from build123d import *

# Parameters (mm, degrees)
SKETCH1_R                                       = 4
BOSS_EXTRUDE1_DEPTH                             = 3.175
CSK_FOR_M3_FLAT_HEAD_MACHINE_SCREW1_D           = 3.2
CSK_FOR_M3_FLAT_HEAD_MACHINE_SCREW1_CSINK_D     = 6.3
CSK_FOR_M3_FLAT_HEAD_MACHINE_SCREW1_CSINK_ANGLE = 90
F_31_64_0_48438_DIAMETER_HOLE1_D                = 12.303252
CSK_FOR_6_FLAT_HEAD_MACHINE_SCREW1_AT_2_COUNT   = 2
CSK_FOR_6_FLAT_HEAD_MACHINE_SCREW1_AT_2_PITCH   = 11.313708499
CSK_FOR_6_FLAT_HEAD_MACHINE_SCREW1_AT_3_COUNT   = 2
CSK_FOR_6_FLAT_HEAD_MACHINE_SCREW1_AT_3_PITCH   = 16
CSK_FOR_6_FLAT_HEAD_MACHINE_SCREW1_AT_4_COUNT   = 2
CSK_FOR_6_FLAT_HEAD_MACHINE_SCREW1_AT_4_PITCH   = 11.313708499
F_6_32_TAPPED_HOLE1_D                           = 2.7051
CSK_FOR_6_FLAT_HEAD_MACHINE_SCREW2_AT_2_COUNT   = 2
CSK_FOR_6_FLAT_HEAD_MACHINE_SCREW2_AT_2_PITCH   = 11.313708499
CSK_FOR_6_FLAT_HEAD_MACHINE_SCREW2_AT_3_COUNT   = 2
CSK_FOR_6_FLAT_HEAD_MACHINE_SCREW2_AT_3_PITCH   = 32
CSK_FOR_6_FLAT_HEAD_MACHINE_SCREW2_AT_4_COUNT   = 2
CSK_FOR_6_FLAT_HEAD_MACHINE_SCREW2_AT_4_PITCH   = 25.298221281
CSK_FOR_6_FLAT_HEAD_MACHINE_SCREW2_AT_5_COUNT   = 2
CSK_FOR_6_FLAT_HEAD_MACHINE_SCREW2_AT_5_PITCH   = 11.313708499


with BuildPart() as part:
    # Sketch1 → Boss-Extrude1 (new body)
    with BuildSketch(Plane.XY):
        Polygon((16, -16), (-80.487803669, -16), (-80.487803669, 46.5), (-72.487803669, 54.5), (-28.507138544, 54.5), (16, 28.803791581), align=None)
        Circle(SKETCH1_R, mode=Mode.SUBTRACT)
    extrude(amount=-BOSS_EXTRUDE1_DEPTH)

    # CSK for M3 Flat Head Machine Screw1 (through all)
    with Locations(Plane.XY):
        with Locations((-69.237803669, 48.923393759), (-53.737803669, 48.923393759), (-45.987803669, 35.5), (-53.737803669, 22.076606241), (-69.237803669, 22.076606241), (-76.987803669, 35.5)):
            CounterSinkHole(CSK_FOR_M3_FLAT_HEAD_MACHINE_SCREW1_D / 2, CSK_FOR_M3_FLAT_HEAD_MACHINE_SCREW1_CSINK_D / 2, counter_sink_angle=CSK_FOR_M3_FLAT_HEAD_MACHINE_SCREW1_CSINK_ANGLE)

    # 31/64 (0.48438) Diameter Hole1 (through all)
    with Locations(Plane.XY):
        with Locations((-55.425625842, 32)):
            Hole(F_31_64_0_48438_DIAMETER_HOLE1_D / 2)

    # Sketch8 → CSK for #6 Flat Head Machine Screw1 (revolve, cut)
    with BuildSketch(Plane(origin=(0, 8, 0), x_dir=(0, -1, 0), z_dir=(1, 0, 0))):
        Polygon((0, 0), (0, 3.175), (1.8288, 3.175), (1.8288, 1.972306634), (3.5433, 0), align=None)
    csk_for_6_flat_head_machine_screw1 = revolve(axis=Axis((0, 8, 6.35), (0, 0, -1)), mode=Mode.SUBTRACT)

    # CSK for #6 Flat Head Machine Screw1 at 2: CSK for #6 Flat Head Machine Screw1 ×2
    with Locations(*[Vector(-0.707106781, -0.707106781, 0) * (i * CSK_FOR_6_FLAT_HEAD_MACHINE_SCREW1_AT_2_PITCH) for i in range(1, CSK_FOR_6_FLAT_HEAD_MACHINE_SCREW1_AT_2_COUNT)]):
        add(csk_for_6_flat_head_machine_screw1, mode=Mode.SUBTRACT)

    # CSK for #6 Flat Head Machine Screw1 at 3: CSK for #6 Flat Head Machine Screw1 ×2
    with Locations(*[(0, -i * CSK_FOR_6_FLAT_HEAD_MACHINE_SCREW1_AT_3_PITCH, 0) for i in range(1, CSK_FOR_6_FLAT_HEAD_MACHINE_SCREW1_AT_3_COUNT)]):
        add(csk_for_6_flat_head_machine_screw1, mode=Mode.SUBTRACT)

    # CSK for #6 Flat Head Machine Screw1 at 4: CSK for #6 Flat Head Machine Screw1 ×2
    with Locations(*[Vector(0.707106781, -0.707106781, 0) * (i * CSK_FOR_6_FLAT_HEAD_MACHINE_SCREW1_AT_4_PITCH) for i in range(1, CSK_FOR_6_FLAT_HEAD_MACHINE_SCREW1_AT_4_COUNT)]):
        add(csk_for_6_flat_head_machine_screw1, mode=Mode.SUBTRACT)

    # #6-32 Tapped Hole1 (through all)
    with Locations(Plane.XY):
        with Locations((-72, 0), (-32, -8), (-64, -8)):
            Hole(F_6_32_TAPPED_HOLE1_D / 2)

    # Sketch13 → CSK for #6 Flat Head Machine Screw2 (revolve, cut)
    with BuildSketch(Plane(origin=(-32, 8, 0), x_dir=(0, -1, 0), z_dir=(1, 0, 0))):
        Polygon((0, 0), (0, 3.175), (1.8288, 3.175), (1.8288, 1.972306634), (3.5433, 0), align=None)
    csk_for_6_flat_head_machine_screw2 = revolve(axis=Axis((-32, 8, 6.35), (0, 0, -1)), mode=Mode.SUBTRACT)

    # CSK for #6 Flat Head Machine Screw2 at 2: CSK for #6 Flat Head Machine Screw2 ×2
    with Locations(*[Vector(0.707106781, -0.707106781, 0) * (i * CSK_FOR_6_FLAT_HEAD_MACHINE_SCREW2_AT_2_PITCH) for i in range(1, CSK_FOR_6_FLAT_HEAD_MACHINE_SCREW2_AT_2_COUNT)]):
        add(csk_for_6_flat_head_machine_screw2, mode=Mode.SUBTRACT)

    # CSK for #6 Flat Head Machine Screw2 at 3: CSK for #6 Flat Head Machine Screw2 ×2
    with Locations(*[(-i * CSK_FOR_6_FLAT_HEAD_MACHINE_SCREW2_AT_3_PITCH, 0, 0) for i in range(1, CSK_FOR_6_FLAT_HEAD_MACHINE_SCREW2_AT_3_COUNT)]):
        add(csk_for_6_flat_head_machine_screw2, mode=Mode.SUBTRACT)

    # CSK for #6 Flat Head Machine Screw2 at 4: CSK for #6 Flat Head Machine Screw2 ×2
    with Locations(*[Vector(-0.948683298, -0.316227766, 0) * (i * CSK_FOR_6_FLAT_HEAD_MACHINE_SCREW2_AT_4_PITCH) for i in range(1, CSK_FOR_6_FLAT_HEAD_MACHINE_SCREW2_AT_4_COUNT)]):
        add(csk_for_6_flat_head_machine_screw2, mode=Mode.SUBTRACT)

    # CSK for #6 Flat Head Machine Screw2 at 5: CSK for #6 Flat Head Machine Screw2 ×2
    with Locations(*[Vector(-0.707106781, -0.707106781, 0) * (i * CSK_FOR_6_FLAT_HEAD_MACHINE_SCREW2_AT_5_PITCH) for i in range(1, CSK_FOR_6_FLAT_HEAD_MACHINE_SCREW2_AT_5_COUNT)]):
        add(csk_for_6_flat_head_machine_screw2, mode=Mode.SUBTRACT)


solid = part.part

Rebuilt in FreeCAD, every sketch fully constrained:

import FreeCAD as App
import Part
import Sketcher
from FreeCAD import Vector
Q = App.Units.Quantity

doc = App.newDocument("Part")
body = doc.addObject("PartDesign::Body", "Body")

sketch1 = body.newObject("Sketcher::SketchObject", "Sketch")
sketch1.AttachmentSupport = (doc.getObject("XY_Plane"), [""])
sketch1.MapMode = "FlatFace"
sketch1.addGeometry(Part.LineSegment(Vector(-80.5, -16, 0), Vector(16, -16, 0)), False)
sketch1.addGeometry(Part.LineSegment(Vector(16, -16, 0), Vector(16, 28.8, 0)), False)
sketch1.addGeometry(Part.LineSegment(Vector(16, 28.8, 0), Vector(-28.5, 54.5, 0)), False)
sketch1.addGeometry(Part.LineSegment(Vector(-28.5, 54.5, 0), Vector(-72.5, 54.5, 0)), False)
sketch1.addGeometry(Part.LineSegment(Vector(-72.5, 54.5, 0), Vector(-80.5, 46.5, 0)), False)
sketch1.addGeometry(Part.LineSegment(Vector(-80.5, 46.5, 0), Vector(-80.5, -16, 0)), False)
sketch1.addGeometry(Part.Circle(Vector(0, 0, 0), Vector(0, 0, 1), 4), False)
sketch1.addConstraint(Sketcher.Constraint("Coincident", 0, 2, 1, 1))
sketch1.addConstraint(Sketcher.Constraint("Coincident", 1, 2, 2, 1))
sketch1.addConstraint(Sketcher.Constraint("Coincident", 2, 2, 3, 1))
sketch1.addConstraint(Sketcher.Constraint("Coincident", 3, 2, 4, 1))
sketch1.addConstraint(Sketcher.Constraint("Coincident", 4, 2, 5, 1))
sketch1.addConstraint(Sketcher.Constraint("Coincident", 5, 2, 0, 1))
sketch1.addConstraint(Sketcher.Constraint("Horizontal", 0))
sketch1.addConstraint(Sketcher.Constraint("Vertical", 1))
sketch1.addConstraint(Sketcher.Constraint("Horizontal", 3))
sketch1.addConstraint(Sketcher.Constraint("Vertical", 5))
sketch1.addConstraint(Sketcher.Constraint("Coincident", 6, 3, -1, 1))
sketch1.addConstraint(Sketcher.Constraint("Diameter", 6, 8.0))
sketch1.addConstraint(Sketcher.Constraint("Angle", 2, Q("150 deg")))
sketch1.addConstraint(Sketcher.Constraint("Angle", 4, Q("-135 deg")))
sketch1.addConstraint(Sketcher.Constraint("DistanceY", 5, 2, 5, 1, 62.5))
sketch1.addConstraint(Sketcher.Constraint("DistanceX", -1, 1, 0, 2, 16.0))
sketch1.addConstraint(Sketcher.Constraint("DistanceY", 0, 2, -1, 1, 16.0))
sketch1.addConstraint(Sketcher.Constraint("DistanceX", 4, 2, 3, 2, 8.0))
sketch1.addConstraint(Sketcher.Constraint("DistanceY", 1, 1, 1, 2, 44.803792))
sketch1.addConstraint(Sketcher.Constraint("DistanceX", 0, 1, 0, 2, 96.487804))
pad1 = body.newObject("PartDesign::Pad", "Pad")
pad1.Profile = sketch1
pad1.Length = 3.175
pad1.Reversed = True

sketch2 = body.newObject("Sketcher::SketchObject", "Sketch001")
sketch2.AttachmentSupport = (doc.getObject("XY_Plane"), [""])
sketch2.MapMode = "FlatFace"
sketch2.addGeometry(Part.Circle(Vector(-69.2, 48.9, 0), Vector(0, 0, 1), 1.6), False)
sketch2.addGeometry(Part.Circle(Vector(-53.7, 48.9, 0), Vector(0, 0, 1), 1.6), False)
sketch2.addGeometry(Part.Circle(Vector(-46, 35.5, 0), Vector(0, 0, 1), 1.6), False)
sketch2.addGeometry(Part.Circle(Vector(-53.7, 22.1, 0), Vector(0, 0, 1), 1.6), False)
sketch2.addGeometry(Part.Circle(Vector(-69.2, 22.1, 0), Vector(0, 0, 1), 1.6), False)
sketch2.addGeometry(Part.Circle(Vector(-77, 35.5, 0), Vector(0, 0, 1), 1.6), False)
sketch2.addConstraint(Sketcher.Constraint("Equal", 0, 1))
sketch2.addConstraint(Sketcher.Constraint("Equal", 1, 2))
sketch2.addConstraint(Sketcher.Constraint("Equal", 2, 3))
sketch2.addConstraint(Sketcher.Constraint("Equal", 3, 4))
sketch2.addConstraint(Sketcher.Constraint("Equal", 4, 5))
sketch2.addConstraint(Sketcher.Constraint("Horizontal", 0, 3, 1, 3))
sketch2.addConstraint(Sketcher.Constraint("Horizontal", 3, 3, 4, 3))
sketch2.addConstraint(Sketcher.Constraint("Horizontal", 2, 3, 5, 3))
sketch2.addConstraint(Sketcher.Constraint("Vertical", 1, 3, 3, 3))
sketch2.addConstraint(Sketcher.Constraint("Vertical", 0, 3, 4, 3))
sketch2.addConstraint(Sketcher.Constraint("Diameter", 0, 3.2))
sketch2.addConstraint(Sketcher.Constraint("DistanceX", 5, 3, 2, 3, 31.0))
sketch2.addConstraint(Sketcher.Constraint("DistanceY", -1, 1, 2, 3, 35.5))
sketch2.addConstraint(Sketcher.Constraint("DistanceX", 0, 3, 1, 3, 15.5))
sketch2.addConstraint(Sketcher.Constraint("DistanceX", 1, 3, 2, 3, 7.75))
sketch2.addConstraint(Sketcher.Constraint("DistanceX", 0, 3, -1, 1, 69.237804))
sketch2.addConstraint(Sketcher.Constraint("DistanceY", -1, 1, 0, 3, 48.923394))
sketch2.addConstraint(Sketcher.Constraint("DistanceY", -1, 1, 3, 3, 22.076606))
doc.recompute()
hole = body.newObject("PartDesign::Hole", "Hole")
hole.Profile = sketch2
hole.ThreadType = "None"
hole.Diameter = 3.2
hole.DepthType = "ThroughAll"
hole.HoleCutType = "Countersink"
hole.HoleCutDiameter = 6.3
hole.HoleCutCountersinkAngle = 90

sketch3 = body.newObject("Sketcher::SketchObject", "Sketch002")
sketch3.AttachmentSupport = (doc.getObject("XY_Plane"), [""])
sketch3.MapMode = "FlatFace"
sketch3.addGeometry(Part.Circle(Vector(-55, 32, 0), Vector(0, 0, 1), 6), False)
sketch3.addConstraint(Sketcher.Constraint("DistanceY", -1, 1, 0, 3, 32.0))
sketch3.addConstraint(Sketcher.Constraint("Diameter", 0, 12.303252))
sketch3.addConstraint(Sketcher.Constraint("DistanceX", 0, 3, -1, 1, 55.425626))
doc.recompute()
hole2 = body.newObject("PartDesign::Hole", "Hole001")
hole2.Profile = sketch3
hole2.ThreadType = "None"
hole2.Diameter = 12.303252
hole2.DepthType = "ThroughAll"

sketch4 = body.newObject("Sketcher::SketchObject", "Sketch003")
sketch4.AttachmentSupport = (doc.getObject("YZ_Plane"), [""])
sketch4.MapMode = "FlatFace"
sketch4.addGeometry(Part.LineSegment(Vector(8, -3.2, 0), Vector(8, 0, 0)), False)
sketch4.addGeometry(Part.LineSegment(Vector(8, 0, 0), Vector(4.5, 0, 0)), False)
sketch4.addGeometry(Part.LineSegment(Vector(4.5, 0, 0), Vector(6.2, -2, 0)), False)
sketch4.addGeometry(Part.LineSegment(Vector(6.2, -2, 0), Vector(6.2, -3.2, 0)), False)
sketch4.addGeometry(Part.LineSegment(Vector(6.2, -3.2, 0), Vector(8, -3.2, 0)), False)
sketch4.addGeometry(Part.LineSegment(Vector(8, 0, 0), Vector(8, -3.2, 0)), True)
sketch4.addConstraint(Sketcher.Constraint("Coincident", 0, 2, 1, 1))
sketch4.addConstraint(Sketcher.Constraint("Coincident", 1, 2, 2, 1))
sketch4.addConstraint(Sketcher.Constraint("Coincident", 2, 2, 3, 1))
sketch4.addConstraint(Sketcher.Constraint("Coincident", 3, 2, 4, 1))
sketch4.addConstraint(Sketcher.Constraint("Coincident", 4, 2, 0, 1))
sketch4.addConstraint(Sketcher.Constraint("Vertical", 0))
sketch4.addConstraint(Sketcher.Constraint("Horizontal", 1))
sketch4.addConstraint(Sketcher.Constraint("Vertical", 3))
sketch4.addConstraint(Sketcher.Constraint("Horizontal", 4))
sketch4.addConstraint(Sketcher.Constraint("Vertical", 5))
sketch4.addConstraint(Sketcher.Constraint("Coincident", 5, 1, 0, 2))
sketch4.addConstraint(Sketcher.Constraint("PointOnObject", 0, 2, -1))
sketch4.addConstraint(Sketcher.Constraint("Horizontal", 3, 2, 5, 2))
sketch4.addConstraint(Sketcher.Constraint("Angle", 2, Q("-49 deg")))
sketch4.addConstraint(Sketcher.Constraint("DistanceX", -1, 1, 0, 2, 8.0))
sketch4.addConstraint(Sketcher.Constraint("DistanceY", 0, 1, 0, 2, 3.175))
sketch4.addConstraint(Sketcher.Constraint("DistanceX", 1, 2, 1, 1, 3.5433))
sketch4.addConstraint(Sketcher.Constraint("DistanceX", 4, 1, 4, 2, 1.8288))
groove = body.newObject("PartDesign::Groove", "Groove")
groove.Profile = sketch4
groove.ReferenceAxis = (sketch4, ["Axis0"])
groove.Angle = 360
doc.recompute()

datumline = body.newObject("PartDesign::Line", "DatumLine")
datumline.Placement = App.Placement(Vector(0, 0, 0), App.Rotation(Vector(0, 0, 1), Vector(-0.707106781, -0.707106781, 0)))
linearpattern = body.newObject("PartDesign::LinearPattern", "LinearPattern")
linearpattern.Originals = [groove]
linearpattern.Direction = (datumline, [""])
linearpattern.Mode = "offset"
linearpattern.Offset = 11.313708
linearpattern.Occurrences = 2
body.Tip = linearpattern
doc.recompute()

linearpattern2 = body.newObject("PartDesign::LinearPattern", "LinearPattern001")
linearpattern2.Originals = [groove]
linearpattern2.Direction = (doc.getObject("Y_Axis"), [""])
linearpattern2.Mode = "offset"
linearpattern2.Offset = 16
linearpattern2.Occurrences = 2
linearpattern2.Reversed = True
body.Tip = linearpattern2
doc.recompute()

datumline2 = body.newObject("PartDesign::Line", "DatumLine001")
datumline2.Placement = App.Placement(Vector(0, 0, 0), App.Rotation(Vector(0, 0, 1), Vector(0.707106781, -0.707106781, 0)))
linearpattern3 = body.newObject("PartDesign::LinearPattern", "LinearPattern002")
linearpattern3.Originals = [groove]
linearpattern3.Direction = (datumline2, [""])
linearpattern3.Mode = "offset"
linearpattern3.Offset = 11.313708
linearpattern3.Occurrences = 2
body.Tip = linearpattern3

sketch5 = body.newObject("Sketcher::SketchObject", "Sketch004")
sketch5.AttachmentSupport = (doc.getObject("XY_Plane"), [""])
sketch5.MapMode = "FlatFace"
sketch5.addGeometry(Part.Circle(Vector(-72, 0, 0), Vector(0, 0, 1), 1.4), False)
sketch5.addGeometry(Part.Circle(Vector(-32, -8, 0), Vector(0, 0, 1), 1.4), False)
sketch5.addGeometry(Part.Circle(Vector(-64, -8, 0), Vector(0, 0, 1), 1.4), False)
sketch5.addConstraint(Sketcher.Constraint("Equal", 0, 1))
sketch5.addConstraint(Sketcher.Constraint("Equal", 1, 2))
sketch5.addConstraint(Sketcher.Constraint("PointOnObject", 0, 3, -1))
sketch5.addConstraint(Sketcher.Constraint("Horizontal", 1, 3, 2, 3))
sketch5.addConstraint(Sketcher.Constraint("DistanceX", 0, 3, -1, 1, 72.0))
sketch5.addConstraint(Sketcher.Constraint("DistanceX", 1, 3, -1, 1, 32.0))
sketch5.addConstraint(Sketcher.Constraint("DistanceY", 1, 3, -1, 1, 8.0))
sketch5.addConstraint(Sketcher.Constraint("DistanceX", 2, 3, -1, 1, 64.0))
sketch5.addConstraint(Sketcher.Constraint("Diameter", 0, 2.7051))
doc.recompute()
hole3 = body.newObject("PartDesign::Hole", "Hole002")
hole3.Profile = sketch5
hole3.ThreadType = "None"
hole3.Diameter = 2.7051
hole3.DepthType = "ThroughAll"

sketch6 = body.newObject("Sketcher::SketchObject", "Sketch005")
sketch6.AttachmentSupport = (doc.getObject("YZ_Plane"), [""])
sketch6.MapMode = "FlatFace"
sketch6.AttachmentOffset = App.Placement(Vector(0, 0, -32), App.Rotation())
sketch6.addGeometry(Part.LineSegment(Vector(8, -3.2, 0), Vector(8, 0, 0)), False)
sketch6.addGeometry(Part.LineSegment(Vector(8, 0, 0), Vector(4.5, 0, 0)), False)
sketch6.addGeometry(Part.LineSegment(Vector(4.5, 0, 0), Vector(6.2, -2, 0)), False)
sketch6.addGeometry(Part.LineSegment(Vector(6.2, -2, 0), Vector(6.2, -3.2, 0)), False)
sketch6.addGeometry(Part.LineSegment(Vector(6.2, -3.2, 0), Vector(8, -3.2, 0)), False)
sketch6.addGeometry(Part.LineSegment(Vector(8, 0, 0), Vector(8, -3.2, 0)), True)
sketch6.addConstraint(Sketcher.Constraint("Coincident", 0, 2, 1, 1))
sketch6.addConstraint(Sketcher.Constraint("Coincident", 1, 2, 2, 1))
sketch6.addConstraint(Sketcher.Constraint("Coincident", 2, 2, 3, 1))
sketch6.addConstraint(Sketcher.Constraint("Coincident", 3, 2, 4, 1))
sketch6.addConstraint(Sketcher.Constraint("Coincident", 4, 2, 0, 1))
sketch6.addConstraint(Sketcher.Constraint("Vertical", 0))
sketch6.addConstraint(Sketcher.Constraint("Horizontal", 1))
sketch6.addConstraint(Sketcher.Constraint("Vertical", 3))
sketch6.addConstraint(Sketcher.Constraint("Horizontal", 4))
sketch6.addConstraint(Sketcher.Constraint("Vertical", 5))
sketch6.addConstraint(Sketcher.Constraint("Coincident", 5, 1, 0, 2))
sketch6.addConstraint(Sketcher.Constraint("PointOnObject", 0, 2, -1))
sketch6.addConstraint(Sketcher.Constraint("Horizontal", 3, 2, 5, 2))
sketch6.addConstraint(Sketcher.Constraint("Angle", 2, Q("-49 deg")))
sketch6.addConstraint(Sketcher.Constraint("DistanceX", -1, 1, 0, 2, 8.0))
sketch6.addConstraint(Sketcher.Constraint("DistanceY", 0, 1, 0, 2, 3.175))
sketch6.addConstraint(Sketcher.Constraint("DistanceX", 1, 2, 1, 1, 3.5433))
sketch6.addConstraint(Sketcher.Constraint("DistanceX", 4, 1, 4, 2, 1.8288))
groove2 = body.newObject("PartDesign::Groove", "Groove001")
groove2.Profile = sketch6
groove2.ReferenceAxis = (sketch6, ["Axis0"])
groove2.Angle = 360
doc.recompute()

datumline3 = body.newObject("PartDesign::Line", "DatumLine002")
datumline3.Placement = App.Placement(Vector(0, 0, 0), App.Rotation(Vector(0, 0, 1), Vector(0.707106781, -0.707106781, 0)))
linearpattern4 = body.newObject("PartDesign::LinearPattern", "LinearPattern003")
linearpattern4.Originals = [groove2]
linearpattern4.Direction = (datumline3, [""])
linearpattern4.Mode = "offset"
linearpattern4.Offset = 11.313708
linearpattern4.Occurrences = 2
body.Tip = linearpattern4
doc.recompute()

linearpattern5 = body.newObject("PartDesign::LinearPattern", "LinearPattern004")
linearpattern5.Originals = [groove2]
linearpattern5.Direction = (doc.getObject("X_Axis"), [""])
linearpattern5.Mode = "offset"
linearpattern5.Offset = 32
linearpattern5.Occurrences = 2
linearpattern5.Reversed = True
body.Tip = linearpattern5
doc.recompute()

datumline4 = body.newObject("PartDesign::Line", "DatumLine003")
datumline4.Placement = App.Placement(Vector(0, 0, 0), App.Rotation(Vector(0, 0, 1), Vector(-0.948683298, -0.316227766, 0)))
linearpattern6 = body.newObject("PartDesign::LinearPattern", "LinearPattern005")
linearpattern6.Originals = [groove2]
linearpattern6.Direction = (datumline4, [""])
linearpattern6.Mode = "offset"
linearpattern6.Offset = 25.298221
linearpattern6.Occurrences = 2
body.Tip = linearpattern6
doc.recompute()

datumline5 = body.newObject("PartDesign::Line", "DatumLine004")
datumline5.Placement = App.Placement(Vector(0, 0, 0), App.Rotation(Vector(0, 0, 1), Vector(-0.707106781, -0.707106781, 0)))
linearpattern7 = body.newObject("PartDesign::LinearPattern", "LinearPattern006")
linearpattern7.Originals = [groove2]
linearpattern7.Direction = (datumline5, [""])
linearpattern7.Mode = "offset"
linearpattern7.Offset = 11.313708
linearpattern7.Occurrences = 2
body.Tip = linearpattern7

doc.recompute()
